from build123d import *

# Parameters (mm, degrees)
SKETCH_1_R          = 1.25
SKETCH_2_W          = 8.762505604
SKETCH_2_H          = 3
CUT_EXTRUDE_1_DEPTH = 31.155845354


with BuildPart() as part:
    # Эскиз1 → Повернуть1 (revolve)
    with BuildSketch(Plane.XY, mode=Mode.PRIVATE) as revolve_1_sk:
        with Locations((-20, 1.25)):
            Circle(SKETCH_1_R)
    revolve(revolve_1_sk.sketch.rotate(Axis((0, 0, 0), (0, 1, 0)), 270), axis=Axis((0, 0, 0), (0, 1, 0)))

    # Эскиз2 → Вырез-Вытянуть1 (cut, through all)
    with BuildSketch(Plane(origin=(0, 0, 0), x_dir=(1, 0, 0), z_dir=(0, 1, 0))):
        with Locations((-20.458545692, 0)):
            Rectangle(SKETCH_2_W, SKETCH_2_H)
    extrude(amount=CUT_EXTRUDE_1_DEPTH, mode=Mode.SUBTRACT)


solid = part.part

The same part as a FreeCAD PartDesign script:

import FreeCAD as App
import Part
import Sketcher
Q = App.Units.Quantity


def add_polygon(sketch, points):
    """Adds a closed chain of lines whose ends are joined by coincident constraints."""
    first, n = sketch.GeometryCount, len(points)
    for a, b in zip(points, points[1:] + points[:1]):
        sketch.addGeometry(Part.LineSegment(App.Vector(*a, 0), App.Vector(*b, 0)), False)
    for i in range(n):
        sketch.addConstraint(Sketcher.Constraint("Coincident", first + i, 2, first + (i + 1) % n, 1))

doc = App.newDocument("Part")
body = doc.addObject("PartDesign::Body", "Body")

# Sketch on XY plane
sketch1 = doc.addObject("Sketcher::SketchObject", "Sketch")
body.addObject(sketch1)
sketch1.AttachmentSupport = (doc.XY_Plane, [""])
sketch1.MapMode = "FlatFace"
sketch1.addGeometry(Part.Circle(App.Vector(-20, 1.2, 0), App.Vector(0, 0, 1), 1.2), False)
sketch1.addConstraint([
    Sketcher.Constraint("Diameter", 0, Q("2.5 mm")),
    Sketcher.Constraint("DistanceX", 0, 3, -1, 1, Q("20 mm")),
    Sketcher.Constraint("DistanceY", -1, 1, 0, 3, Q("1.25 mm")),
])
revolution = doc.addObject("PartDesign::Revolution", "Revolution")
body.addObject(revolution)
revolution.Profile = sketch1
revolution.ReferenceAxis = (sketch1, ["V_Axis"])
revolution.Angle = 360

# Sketch on XZ plane
sketch2 = doc.addObject("Sketcher::SketchObject", "Sketch001")
body.addObject(sketch2)
sketch2.AttachmentSupport = (doc.XZ_Plane, [""])
sketch2.MapMode = "FlatFace"
add_polygon(sketch2, [(-24.8, -1.5), (-24.8, 1.5), (-16.1, 1.5), (-16.1, -1.5)])  # lines 0-3
sketch2.addConstraint([
    Sketcher.Constraint("Vertical", 0),
    Sketcher.Constraint("Horizontal", 1),
    Sketcher.Constraint("Vertical", 2),
    Sketcher.Constraint("Horizontal", 3),
    Sketcher.Constraint("DistanceY", 0, 1, 0, 2, Q("3 mm")),
    Sketcher.Constraint("DistanceY", -1, 1, 0, 2, Q("1.5 mm")),
    Sketcher.Constraint("DistanceX", 0, 2, -1, 1, Q("24.839798 mm")),
    Sketcher.Constraint("DistanceX", 1, 1, 1, 2, Q("8.762506 mm")),
])
pocket1 = doc.addObject("PartDesign::Pocket", "Pocket")
body.addObject(pocket1)
pocket1.Profile = sketch2
pocket1.Type = "ThroughAll"

doc.recompute()
